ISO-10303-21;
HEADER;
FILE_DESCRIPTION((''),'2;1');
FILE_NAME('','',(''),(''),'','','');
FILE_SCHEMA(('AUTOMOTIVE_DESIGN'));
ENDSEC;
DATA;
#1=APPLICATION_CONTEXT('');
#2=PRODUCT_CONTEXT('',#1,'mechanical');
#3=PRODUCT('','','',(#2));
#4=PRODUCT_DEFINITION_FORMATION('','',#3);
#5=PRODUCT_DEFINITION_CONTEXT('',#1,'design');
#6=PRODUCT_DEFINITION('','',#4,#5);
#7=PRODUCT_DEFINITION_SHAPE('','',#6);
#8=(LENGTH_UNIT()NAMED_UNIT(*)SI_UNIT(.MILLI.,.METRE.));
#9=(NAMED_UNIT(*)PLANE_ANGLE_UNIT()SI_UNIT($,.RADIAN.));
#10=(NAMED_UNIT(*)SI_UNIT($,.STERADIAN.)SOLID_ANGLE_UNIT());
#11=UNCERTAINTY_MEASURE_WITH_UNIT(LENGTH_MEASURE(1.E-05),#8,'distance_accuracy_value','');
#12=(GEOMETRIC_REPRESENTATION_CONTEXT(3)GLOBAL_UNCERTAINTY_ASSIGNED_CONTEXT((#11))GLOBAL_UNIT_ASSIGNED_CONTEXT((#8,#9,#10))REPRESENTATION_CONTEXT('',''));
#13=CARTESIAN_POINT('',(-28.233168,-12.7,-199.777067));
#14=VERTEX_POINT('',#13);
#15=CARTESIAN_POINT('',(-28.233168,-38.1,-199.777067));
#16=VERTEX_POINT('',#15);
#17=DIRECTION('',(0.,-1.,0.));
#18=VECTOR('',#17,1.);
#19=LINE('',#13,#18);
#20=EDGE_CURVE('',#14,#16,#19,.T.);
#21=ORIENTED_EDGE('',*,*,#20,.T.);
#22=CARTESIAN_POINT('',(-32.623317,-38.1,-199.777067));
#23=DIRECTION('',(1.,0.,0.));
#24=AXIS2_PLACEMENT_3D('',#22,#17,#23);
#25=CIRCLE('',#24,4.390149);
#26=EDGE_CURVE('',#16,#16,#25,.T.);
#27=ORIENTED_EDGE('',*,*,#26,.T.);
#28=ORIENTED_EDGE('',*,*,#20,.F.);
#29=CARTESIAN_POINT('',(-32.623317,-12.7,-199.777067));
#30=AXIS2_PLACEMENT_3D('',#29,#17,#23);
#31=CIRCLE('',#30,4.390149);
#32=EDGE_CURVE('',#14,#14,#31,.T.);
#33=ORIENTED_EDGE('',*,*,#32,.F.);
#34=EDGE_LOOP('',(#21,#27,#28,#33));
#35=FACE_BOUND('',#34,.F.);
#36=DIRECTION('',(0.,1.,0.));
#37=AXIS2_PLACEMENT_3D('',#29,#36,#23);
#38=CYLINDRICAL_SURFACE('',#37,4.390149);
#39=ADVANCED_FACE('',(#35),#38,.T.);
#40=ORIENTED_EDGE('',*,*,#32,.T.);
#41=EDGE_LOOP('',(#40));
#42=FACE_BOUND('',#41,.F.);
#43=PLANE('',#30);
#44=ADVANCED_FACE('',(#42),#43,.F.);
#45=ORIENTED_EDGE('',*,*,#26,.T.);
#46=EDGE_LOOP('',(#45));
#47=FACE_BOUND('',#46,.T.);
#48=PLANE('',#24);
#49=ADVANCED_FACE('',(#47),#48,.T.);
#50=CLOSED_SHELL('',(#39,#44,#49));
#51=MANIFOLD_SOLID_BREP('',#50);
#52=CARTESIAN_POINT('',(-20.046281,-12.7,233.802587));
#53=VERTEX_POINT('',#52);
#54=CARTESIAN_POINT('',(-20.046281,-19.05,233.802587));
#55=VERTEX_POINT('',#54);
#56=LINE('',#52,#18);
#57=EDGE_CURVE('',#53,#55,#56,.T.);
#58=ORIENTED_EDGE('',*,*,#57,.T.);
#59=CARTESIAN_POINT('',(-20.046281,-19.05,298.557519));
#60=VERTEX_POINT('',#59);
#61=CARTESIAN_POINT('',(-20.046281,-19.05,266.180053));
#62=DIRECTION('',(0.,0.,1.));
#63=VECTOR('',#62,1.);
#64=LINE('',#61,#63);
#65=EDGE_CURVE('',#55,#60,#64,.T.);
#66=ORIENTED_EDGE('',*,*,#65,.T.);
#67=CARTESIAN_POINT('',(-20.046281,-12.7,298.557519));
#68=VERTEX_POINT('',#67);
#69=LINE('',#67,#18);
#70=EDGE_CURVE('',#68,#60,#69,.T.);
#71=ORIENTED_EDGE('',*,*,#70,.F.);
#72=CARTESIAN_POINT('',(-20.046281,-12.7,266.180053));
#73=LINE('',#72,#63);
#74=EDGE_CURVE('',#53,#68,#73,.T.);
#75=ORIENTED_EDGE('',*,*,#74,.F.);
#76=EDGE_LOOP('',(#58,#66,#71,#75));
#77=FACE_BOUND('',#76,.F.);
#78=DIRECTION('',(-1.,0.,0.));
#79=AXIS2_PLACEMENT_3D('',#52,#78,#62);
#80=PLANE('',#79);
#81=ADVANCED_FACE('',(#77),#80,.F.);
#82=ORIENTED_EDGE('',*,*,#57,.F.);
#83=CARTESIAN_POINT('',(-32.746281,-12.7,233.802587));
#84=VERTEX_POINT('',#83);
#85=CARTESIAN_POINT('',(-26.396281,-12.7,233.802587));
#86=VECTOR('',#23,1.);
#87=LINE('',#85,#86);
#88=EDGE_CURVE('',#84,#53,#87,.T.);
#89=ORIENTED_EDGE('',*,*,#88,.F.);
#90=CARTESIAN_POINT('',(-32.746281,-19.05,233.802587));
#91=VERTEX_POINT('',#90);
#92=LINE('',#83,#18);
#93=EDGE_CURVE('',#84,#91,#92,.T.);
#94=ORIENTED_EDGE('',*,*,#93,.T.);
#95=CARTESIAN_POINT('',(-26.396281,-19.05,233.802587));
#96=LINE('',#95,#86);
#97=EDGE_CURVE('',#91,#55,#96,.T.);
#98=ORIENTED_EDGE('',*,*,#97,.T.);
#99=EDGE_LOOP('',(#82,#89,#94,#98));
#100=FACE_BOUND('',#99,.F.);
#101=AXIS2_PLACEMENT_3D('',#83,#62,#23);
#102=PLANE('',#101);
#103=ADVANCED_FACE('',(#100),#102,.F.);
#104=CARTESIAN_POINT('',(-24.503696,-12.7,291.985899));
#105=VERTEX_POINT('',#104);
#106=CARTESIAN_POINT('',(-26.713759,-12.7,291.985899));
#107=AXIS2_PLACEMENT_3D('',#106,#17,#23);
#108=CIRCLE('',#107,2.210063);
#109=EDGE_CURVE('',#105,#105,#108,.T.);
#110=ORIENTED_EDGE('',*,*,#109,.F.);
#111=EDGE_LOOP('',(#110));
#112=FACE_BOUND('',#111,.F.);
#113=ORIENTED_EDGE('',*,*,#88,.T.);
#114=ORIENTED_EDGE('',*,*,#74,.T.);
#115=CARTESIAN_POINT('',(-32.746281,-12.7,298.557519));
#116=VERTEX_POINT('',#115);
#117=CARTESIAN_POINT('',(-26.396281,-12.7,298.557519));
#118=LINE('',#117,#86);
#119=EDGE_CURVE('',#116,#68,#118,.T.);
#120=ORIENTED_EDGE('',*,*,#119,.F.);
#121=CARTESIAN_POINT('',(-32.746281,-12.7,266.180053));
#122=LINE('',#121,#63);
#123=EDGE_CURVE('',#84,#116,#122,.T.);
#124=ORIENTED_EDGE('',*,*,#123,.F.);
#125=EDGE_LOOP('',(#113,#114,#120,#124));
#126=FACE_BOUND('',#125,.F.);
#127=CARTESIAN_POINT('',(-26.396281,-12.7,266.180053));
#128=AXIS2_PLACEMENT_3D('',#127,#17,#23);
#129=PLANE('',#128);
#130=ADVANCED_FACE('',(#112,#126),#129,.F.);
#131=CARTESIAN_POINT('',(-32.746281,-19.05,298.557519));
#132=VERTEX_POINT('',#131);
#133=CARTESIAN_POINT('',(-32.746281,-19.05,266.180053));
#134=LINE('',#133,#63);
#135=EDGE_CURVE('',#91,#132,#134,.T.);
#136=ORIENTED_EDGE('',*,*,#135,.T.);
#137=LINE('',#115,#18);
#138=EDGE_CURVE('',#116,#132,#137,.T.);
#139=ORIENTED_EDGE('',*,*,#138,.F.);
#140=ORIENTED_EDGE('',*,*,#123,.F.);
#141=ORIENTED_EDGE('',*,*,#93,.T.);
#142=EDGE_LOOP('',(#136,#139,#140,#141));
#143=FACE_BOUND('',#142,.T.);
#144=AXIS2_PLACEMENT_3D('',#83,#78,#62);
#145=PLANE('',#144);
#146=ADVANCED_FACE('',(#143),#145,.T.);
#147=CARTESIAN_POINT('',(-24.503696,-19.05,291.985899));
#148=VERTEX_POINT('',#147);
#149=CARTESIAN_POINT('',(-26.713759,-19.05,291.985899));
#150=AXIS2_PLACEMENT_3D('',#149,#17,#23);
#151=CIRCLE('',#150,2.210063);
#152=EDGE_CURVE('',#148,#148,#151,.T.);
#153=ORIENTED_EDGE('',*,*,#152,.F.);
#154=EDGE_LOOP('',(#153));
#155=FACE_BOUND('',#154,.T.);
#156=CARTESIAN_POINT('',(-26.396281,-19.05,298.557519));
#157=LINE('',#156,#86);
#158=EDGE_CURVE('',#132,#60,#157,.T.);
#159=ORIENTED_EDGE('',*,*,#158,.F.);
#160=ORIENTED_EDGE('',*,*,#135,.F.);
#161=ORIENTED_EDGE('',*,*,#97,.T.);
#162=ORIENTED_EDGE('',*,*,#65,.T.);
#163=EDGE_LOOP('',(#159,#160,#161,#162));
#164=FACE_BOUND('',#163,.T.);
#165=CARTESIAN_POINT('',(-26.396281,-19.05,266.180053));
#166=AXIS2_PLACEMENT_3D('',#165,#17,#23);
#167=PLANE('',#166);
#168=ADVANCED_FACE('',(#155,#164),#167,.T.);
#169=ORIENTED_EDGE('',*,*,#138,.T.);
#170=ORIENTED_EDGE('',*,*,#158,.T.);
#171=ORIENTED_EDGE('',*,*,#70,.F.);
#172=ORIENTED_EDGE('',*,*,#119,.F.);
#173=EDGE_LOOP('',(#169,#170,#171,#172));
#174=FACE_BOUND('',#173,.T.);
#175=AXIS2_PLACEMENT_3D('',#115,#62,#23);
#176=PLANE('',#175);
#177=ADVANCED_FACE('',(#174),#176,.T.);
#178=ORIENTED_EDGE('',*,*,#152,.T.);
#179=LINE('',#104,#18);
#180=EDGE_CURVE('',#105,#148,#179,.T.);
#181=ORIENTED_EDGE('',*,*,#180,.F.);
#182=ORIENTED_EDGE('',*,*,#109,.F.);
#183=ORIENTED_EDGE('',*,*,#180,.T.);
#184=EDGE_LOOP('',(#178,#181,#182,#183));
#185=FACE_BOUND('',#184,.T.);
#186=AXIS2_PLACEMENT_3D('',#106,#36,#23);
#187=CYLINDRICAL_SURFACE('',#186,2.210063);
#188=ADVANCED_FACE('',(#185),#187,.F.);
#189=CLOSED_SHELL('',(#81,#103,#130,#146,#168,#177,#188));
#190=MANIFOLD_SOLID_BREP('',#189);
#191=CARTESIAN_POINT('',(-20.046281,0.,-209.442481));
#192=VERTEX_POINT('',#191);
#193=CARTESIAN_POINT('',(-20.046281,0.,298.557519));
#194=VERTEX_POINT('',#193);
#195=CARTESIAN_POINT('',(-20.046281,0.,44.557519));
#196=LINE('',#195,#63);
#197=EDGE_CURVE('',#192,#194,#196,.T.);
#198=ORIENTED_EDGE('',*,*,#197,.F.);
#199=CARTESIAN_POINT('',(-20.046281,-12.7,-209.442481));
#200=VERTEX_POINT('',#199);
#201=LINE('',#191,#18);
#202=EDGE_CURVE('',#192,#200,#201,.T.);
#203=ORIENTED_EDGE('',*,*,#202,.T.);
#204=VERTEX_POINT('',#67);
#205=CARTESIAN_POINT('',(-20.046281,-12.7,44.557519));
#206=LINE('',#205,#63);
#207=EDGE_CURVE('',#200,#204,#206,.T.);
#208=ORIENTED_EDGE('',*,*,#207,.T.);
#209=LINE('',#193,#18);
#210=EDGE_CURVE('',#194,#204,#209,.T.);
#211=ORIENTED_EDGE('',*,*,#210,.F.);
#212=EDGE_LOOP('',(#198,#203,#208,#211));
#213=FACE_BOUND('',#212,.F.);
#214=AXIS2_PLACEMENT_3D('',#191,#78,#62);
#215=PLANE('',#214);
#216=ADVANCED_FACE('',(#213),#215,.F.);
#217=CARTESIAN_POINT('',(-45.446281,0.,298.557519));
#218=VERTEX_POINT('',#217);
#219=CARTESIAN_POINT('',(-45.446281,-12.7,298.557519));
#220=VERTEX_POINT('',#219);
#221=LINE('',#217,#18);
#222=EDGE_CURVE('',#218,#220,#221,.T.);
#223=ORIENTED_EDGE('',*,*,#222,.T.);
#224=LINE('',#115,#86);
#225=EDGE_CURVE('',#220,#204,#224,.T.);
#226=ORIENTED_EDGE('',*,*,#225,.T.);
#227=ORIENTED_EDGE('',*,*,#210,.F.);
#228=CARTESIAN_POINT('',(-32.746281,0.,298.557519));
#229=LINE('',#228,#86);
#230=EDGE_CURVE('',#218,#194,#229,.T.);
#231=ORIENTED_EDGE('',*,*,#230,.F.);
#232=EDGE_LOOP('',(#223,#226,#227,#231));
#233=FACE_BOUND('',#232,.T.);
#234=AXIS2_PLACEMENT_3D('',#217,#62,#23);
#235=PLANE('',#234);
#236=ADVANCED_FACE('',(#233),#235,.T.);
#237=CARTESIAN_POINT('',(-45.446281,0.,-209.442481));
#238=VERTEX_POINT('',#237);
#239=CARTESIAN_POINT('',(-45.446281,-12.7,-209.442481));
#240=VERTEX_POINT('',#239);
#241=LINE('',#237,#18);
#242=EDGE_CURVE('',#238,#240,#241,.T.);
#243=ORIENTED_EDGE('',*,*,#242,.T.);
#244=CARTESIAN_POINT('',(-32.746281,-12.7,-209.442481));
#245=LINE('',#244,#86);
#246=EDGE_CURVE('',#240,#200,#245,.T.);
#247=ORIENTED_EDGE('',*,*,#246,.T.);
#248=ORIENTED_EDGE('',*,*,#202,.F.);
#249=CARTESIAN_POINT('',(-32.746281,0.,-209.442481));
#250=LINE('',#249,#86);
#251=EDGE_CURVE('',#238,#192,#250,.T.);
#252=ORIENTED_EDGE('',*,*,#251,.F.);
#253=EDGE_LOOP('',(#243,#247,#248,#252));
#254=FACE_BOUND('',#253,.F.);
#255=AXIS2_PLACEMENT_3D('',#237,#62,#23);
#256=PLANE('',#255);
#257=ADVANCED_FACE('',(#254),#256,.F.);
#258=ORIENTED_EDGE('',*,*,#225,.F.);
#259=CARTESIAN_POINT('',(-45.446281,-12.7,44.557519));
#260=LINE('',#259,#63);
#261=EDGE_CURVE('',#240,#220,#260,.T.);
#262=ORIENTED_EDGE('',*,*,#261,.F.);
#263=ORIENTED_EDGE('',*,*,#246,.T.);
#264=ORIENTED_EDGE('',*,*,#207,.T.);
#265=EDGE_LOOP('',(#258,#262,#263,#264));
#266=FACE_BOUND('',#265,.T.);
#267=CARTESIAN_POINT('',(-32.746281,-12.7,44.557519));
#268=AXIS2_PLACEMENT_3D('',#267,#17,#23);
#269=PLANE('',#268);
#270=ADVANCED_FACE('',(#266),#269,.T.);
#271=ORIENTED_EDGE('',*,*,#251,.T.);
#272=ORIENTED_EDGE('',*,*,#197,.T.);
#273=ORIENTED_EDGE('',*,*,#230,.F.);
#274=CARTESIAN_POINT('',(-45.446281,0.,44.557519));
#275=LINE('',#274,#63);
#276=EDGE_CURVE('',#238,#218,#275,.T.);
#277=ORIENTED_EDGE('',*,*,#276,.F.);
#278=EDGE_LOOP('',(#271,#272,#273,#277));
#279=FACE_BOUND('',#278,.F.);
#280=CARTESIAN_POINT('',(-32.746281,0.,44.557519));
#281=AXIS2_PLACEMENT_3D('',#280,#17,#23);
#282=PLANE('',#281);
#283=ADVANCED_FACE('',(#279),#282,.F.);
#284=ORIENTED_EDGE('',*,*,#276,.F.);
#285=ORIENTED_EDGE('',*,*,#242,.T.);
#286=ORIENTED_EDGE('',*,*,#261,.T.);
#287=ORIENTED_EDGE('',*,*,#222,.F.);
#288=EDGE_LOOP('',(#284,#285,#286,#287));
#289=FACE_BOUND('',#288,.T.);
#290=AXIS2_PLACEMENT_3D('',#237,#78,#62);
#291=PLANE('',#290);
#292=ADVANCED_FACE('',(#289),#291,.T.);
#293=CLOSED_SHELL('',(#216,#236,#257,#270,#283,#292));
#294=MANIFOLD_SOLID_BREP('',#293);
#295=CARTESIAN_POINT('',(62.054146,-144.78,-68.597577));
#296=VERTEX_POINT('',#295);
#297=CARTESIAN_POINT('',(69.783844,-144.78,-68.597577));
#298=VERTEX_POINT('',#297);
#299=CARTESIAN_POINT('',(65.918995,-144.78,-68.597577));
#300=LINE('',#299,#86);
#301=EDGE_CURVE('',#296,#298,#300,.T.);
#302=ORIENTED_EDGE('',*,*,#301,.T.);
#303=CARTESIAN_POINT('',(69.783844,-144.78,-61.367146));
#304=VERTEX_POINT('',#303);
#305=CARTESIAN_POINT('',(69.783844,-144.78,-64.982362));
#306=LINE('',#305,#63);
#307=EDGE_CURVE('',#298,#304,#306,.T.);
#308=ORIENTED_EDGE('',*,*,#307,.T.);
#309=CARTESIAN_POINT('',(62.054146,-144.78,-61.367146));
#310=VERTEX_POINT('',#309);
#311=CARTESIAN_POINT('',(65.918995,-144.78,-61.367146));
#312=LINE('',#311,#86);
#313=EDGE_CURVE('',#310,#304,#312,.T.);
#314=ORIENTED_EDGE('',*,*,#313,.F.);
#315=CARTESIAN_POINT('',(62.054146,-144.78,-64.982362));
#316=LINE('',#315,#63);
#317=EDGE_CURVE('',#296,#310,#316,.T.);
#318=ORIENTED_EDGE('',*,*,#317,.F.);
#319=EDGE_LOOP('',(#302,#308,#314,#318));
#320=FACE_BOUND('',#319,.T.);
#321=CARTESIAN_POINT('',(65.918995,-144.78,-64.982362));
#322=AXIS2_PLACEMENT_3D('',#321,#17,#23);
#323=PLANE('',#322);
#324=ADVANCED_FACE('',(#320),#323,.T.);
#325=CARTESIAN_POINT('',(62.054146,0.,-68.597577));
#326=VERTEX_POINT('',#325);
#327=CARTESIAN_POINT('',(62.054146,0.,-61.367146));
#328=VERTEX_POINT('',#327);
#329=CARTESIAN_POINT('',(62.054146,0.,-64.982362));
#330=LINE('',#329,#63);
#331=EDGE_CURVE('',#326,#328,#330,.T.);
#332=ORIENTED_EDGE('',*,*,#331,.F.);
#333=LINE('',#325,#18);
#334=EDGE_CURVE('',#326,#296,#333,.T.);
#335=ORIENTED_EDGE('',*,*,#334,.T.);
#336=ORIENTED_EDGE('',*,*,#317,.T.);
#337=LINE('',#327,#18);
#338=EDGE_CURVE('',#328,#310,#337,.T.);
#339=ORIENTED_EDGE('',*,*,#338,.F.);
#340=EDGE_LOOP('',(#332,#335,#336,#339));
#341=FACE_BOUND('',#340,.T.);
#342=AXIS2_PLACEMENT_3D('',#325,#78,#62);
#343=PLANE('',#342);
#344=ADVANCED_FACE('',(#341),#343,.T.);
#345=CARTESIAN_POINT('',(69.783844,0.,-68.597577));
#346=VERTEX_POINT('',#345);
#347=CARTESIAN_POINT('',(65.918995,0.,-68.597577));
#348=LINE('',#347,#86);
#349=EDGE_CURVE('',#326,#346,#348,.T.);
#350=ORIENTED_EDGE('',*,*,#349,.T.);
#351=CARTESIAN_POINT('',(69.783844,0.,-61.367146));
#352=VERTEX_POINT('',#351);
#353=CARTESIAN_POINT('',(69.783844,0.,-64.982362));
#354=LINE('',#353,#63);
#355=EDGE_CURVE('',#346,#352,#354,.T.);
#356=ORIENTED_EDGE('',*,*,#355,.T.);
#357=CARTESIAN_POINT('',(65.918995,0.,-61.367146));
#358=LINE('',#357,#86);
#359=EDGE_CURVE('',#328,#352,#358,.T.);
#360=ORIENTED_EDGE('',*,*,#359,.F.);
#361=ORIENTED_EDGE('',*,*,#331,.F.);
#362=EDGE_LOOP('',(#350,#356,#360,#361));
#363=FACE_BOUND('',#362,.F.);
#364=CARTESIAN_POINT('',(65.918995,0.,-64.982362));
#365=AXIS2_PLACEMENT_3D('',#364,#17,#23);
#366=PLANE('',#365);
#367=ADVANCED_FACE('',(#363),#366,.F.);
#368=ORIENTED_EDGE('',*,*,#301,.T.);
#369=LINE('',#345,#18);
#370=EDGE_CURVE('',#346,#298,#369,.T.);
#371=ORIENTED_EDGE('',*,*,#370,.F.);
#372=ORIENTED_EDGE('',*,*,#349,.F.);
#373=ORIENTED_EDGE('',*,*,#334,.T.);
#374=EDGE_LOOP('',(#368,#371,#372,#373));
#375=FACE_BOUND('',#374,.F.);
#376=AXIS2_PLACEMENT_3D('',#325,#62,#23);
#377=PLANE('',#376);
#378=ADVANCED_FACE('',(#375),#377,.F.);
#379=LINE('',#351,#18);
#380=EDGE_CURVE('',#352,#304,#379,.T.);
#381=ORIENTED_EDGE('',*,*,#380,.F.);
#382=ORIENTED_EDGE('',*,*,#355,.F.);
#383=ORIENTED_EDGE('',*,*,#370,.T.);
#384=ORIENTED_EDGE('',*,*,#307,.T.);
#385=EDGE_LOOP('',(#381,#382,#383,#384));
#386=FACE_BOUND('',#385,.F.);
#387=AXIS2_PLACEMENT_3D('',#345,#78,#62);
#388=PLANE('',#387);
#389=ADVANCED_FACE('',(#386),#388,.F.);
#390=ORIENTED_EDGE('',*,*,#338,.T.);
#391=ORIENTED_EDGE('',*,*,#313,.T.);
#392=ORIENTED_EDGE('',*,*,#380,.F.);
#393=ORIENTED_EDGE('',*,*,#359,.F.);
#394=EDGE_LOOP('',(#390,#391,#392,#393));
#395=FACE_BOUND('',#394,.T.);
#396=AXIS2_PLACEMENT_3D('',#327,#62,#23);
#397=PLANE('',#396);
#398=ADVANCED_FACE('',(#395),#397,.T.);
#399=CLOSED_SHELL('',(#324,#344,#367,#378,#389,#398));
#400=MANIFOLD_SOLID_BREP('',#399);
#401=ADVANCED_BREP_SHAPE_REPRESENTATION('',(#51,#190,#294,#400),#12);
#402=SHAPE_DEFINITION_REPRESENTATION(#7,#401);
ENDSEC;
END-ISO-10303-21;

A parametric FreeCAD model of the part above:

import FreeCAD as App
import Part
import Sketcher

V = App.Vector
Q = App.Units.Quantity

doc = App.newDocument("Part")
body = doc.addObject("PartDesign::Body", "Body")

# Sketch on XZ plane
sketch1 = body.newObject("Sketcher::SketchObject", "Sketch")
sketch1.AttachmentSupport = (doc.getObject("XZ_Plane"), [""])
sketch1.MapMode = "FlatFace"
sketch1.addGeometry(Part.LineSegment(V(-45, 299, 0), V(-45, -209, 0)), False)
sketch1.addGeometry(Part.LineSegment(V(-45, -209, 0), V(-20, -209, 0)), False)
sketch1.addGeometry(Part.LineSegment(V(-20, -209, 0), V(-20, 299, 0)), False)
sketch1.addGeometry(Part.LineSegment(V(-20, 299, 0), V(-45, 299, 0)), False)
sketch1.addConstraint(Sketcher.Constraint("Coincident", 0, 2, 1, 1))
sketch1.addConstraint(Sketcher.Constraint("Coincident", 1, 2, 2, 1))
sketch1.addConstraint(Sketcher.Constraint("Coincident", 2, 2, 3, 1))
sketch1.addConstraint(Sketcher.Constraint("Coincident", 3, 2, 0, 1))
sketch1.addConstraint(Sketcher.Constraint("Vertical", 0))
sketch1.addConstraint(Sketcher.Constraint("Horizontal", 1))
sketch1.addConstraint(Sketcher.Constraint("Vertical", 2))
sketch1.addConstraint(Sketcher.Constraint("Horizontal", 3))
sketch1.addConstraint(Sketcher.Constraint("DistanceX", 1, 1, 1, 2, Q("1 in")))
sketch1.addConstraint(Sketcher.Constraint("DistanceY", 0, 2, 0, 1, Q("20 in")))
sketch1.addConstraint(Sketcher.Constraint("DistanceX", 0, 2, -1, 1, Q("45.446281 mm")))
sketch1.addConstraint(Sketcher.Constraint("DistanceY", 0, 2, -1, 1, Q("209.442481 mm")))
pad1 = body.newObject("PartDesign::Pad", "Pad")
pad1.Profile = sketch1
pad1.Length = Q("0.5 in")
body2 = doc.addObject("PartDesign::Body", "Body001")

# Sketch on XZ plane
sketch2 = body2.newObject("Sketcher::SketchObject", "Sketch001")
sketch2.AttachmentSupport = (doc.getObject("XZ_Plane001"), [""])
sketch2.MapMode = "FlatFace"
sketch2.AttachmentOffset = App.Placement(V(0, 0, 0.5 * 25.4), App.Rotation())
sketch2.addGeometry(Part.LineSegment(V(-32.7, 298.6, 0), V(-32.7, 233.8, 0)), False)
sketch2.addGeometry(Part.LineSegment(V(-32.7, 233.8, 0), V(-20, 233.8, 0)), False)
sketch2.addGeometry(Part.LineSegment(V(-20, 233.8, 0), V(-20, 298.6, 0)), False)
sketch2.addGeometry(Part.LineSegment(V(-20, 298.6, 0), V(-32.7, 298.6, 0)), False)
sketch2.addGeometry(Part.Circle(V(-26.7, 292, 0), V(0, 0, 1), 2.2), False)
sketch2.addConstraint(Sketcher.Constraint("Coincident", 0, 2, 1, 1))
sketch2.addConstraint(Sketcher.Constraint("Coincident", 1, 2, 2, 1))
sketch2.addConstraint(Sketcher.Constraint("Coincident", 2, 2, 3, 1))
sketch2.addConstraint(Sketcher.Constraint("Coincident", 3, 2, 0, 1))
sketch2.addConstraint(Sketcher.Constraint("Vertical", 0))
sketch2.addConstraint(Sketcher.Constraint("Horizontal", 1))
sketch2.addConstraint(Sketcher.Constraint("Vertical", 2))
sketch2.addConstraint(Sketcher.Constraint("Horizontal", 3))
sketch2.addConstraint(Sketcher.Constraint("DistanceX", 1, 1, 1, 2, Q("0.5 in")))
sketch2.addConstraint(Sketcher.Constraint("Diameter", 4, Q("4.420126 mm")))
sketch2.addConstraint(Sketcher.Constraint("DistanceY", -1, 1, 4, 3, Q("291.985899 mm")))
sketch2.addConstraint(Sketcher.Constraint("DistanceY", 0, 2, 0, 1, Q("64.754932 mm")))
sketch2.addConstraint(Sketcher.Constraint("DistanceX", 4, 3, -1, 1, Q("26.713759 mm")))
sketch2.addConstraint(Sketcher.Constraint("DistanceX", 0, 2, -1, 1, Q("32.746281 mm")))
sketch2.addConstraint(Sketcher.Constraint("DistanceY", -1, 1, 2, 2, Q("298.557519 mm")))
pad2 = body2.newObject("PartDesign::Pad", "Pad001")
pad2.Profile = sketch2
pad2.Length = Q("0.25 in")
body3 = doc.addObject("PartDesign::Body", "Body002")

# Sketch on XZ plane
sketch3 = body3.newObject("Sketcher::SketchObject", "Sketch002")
sketch3.AttachmentSupport = (doc.getObject("XZ_Plane002"), [""])
sketch3.MapMode = "FlatFace"
sketch3.AttachmentOffset = App.Placement(V(0, 0, 0.5 * 25.4), App.Rotation())
sketch3.addGeometry(Part.Circle(V(-32.6, -199.8, 0), V(0, 0, 1), 4.4), False)
sketch3.addConstraint(Sketcher.Constraint("Diameter", 0, Q("8.780298 mm")))
sketch3.addConstraint(Sketcher.Constraint("DistanceX", 0, 3, -1, 1, Q("32.623317 mm")))
sketch3.addConstraint(Sketcher.Constraint("DistanceY", 0, 3, -1, 1, Q("199.777067 mm")))
pad3 = body3.newObject("PartDesign::Pad", "Pad002")
pad3.Profile = sketch3
pad3.Length = Q("1 in")
body4 = doc.addObject("PartDesign::Body", "Body003")

# Sketch on XZ plane
sketch4 = body4.newObject("Sketcher::SketchObject", "Sketch003")
sketch4.AttachmentSupport = (doc.getObject("XZ_Plane003"), [""])
sketch4.MapMode = "FlatFace"
sketch4.addGeometry(Part.LineSegment(V(62, -61, 0), V(62, -69, 0)), False)
sketch4.addGeometry(Part.LineSegment(V(62, -69, 0), V(70, -69, 0)), False)
sketch4.addGeometry(Part.LineSegment(V(70, -69, 0), V(70, -61, 0)), False)
sketch4.addGeometry(Part.LineSegment(V(70, -61, 0), V(62, -61, 0)), False)
sketch4.addConstraint(Sketcher.Constraint("Coincident", 0, 2, 1, 1))
sketch4.addConstraint(Sketcher.Constraint("Coincident", 1, 2, 2, 1))
sketch4.addConstraint(Sketcher.Constraint("Coincident", 2, 2, 3, 1))
sketch4.addConstraint(Sketcher.Constraint("Coincident", 3, 2, 0, 1))
sketch4.addConstraint(Sketcher.Constraint("Vertical", 0))
sketch4.addConstraint(Sketcher.Constraint("Horizontal", 1))
sketch4.addConstraint(Sketcher.Constraint("Vertical", 2))
sketch4.addConstraint(Sketcher.Constraint("Horizontal", 3))
sketch4.addConstraint(Sketcher.Constraint("DistanceY", 0, 2, 0, 1, Q("7.230431 mm")))
sketch4.addConstraint(Sketcher.Constraint("DistanceX", 1, 1, 1, 2, Q("7.729698 mm")))
sketch4.addConstraint(Sketcher.Constraint("DistanceX", -1, 1, 0, 2, Q("62.054146 mm")))
sketch4.addConstraint(Sketcher.Constraint("DistanceY", 0, 2, -1, 1, Q("68.597577 mm")))
pad4 = body4.newObject("PartDesign::Pad", "Pad003")
pad4.Profile = sketch4
pad4.Length = Q("5.7 in")

doc.recompute()
